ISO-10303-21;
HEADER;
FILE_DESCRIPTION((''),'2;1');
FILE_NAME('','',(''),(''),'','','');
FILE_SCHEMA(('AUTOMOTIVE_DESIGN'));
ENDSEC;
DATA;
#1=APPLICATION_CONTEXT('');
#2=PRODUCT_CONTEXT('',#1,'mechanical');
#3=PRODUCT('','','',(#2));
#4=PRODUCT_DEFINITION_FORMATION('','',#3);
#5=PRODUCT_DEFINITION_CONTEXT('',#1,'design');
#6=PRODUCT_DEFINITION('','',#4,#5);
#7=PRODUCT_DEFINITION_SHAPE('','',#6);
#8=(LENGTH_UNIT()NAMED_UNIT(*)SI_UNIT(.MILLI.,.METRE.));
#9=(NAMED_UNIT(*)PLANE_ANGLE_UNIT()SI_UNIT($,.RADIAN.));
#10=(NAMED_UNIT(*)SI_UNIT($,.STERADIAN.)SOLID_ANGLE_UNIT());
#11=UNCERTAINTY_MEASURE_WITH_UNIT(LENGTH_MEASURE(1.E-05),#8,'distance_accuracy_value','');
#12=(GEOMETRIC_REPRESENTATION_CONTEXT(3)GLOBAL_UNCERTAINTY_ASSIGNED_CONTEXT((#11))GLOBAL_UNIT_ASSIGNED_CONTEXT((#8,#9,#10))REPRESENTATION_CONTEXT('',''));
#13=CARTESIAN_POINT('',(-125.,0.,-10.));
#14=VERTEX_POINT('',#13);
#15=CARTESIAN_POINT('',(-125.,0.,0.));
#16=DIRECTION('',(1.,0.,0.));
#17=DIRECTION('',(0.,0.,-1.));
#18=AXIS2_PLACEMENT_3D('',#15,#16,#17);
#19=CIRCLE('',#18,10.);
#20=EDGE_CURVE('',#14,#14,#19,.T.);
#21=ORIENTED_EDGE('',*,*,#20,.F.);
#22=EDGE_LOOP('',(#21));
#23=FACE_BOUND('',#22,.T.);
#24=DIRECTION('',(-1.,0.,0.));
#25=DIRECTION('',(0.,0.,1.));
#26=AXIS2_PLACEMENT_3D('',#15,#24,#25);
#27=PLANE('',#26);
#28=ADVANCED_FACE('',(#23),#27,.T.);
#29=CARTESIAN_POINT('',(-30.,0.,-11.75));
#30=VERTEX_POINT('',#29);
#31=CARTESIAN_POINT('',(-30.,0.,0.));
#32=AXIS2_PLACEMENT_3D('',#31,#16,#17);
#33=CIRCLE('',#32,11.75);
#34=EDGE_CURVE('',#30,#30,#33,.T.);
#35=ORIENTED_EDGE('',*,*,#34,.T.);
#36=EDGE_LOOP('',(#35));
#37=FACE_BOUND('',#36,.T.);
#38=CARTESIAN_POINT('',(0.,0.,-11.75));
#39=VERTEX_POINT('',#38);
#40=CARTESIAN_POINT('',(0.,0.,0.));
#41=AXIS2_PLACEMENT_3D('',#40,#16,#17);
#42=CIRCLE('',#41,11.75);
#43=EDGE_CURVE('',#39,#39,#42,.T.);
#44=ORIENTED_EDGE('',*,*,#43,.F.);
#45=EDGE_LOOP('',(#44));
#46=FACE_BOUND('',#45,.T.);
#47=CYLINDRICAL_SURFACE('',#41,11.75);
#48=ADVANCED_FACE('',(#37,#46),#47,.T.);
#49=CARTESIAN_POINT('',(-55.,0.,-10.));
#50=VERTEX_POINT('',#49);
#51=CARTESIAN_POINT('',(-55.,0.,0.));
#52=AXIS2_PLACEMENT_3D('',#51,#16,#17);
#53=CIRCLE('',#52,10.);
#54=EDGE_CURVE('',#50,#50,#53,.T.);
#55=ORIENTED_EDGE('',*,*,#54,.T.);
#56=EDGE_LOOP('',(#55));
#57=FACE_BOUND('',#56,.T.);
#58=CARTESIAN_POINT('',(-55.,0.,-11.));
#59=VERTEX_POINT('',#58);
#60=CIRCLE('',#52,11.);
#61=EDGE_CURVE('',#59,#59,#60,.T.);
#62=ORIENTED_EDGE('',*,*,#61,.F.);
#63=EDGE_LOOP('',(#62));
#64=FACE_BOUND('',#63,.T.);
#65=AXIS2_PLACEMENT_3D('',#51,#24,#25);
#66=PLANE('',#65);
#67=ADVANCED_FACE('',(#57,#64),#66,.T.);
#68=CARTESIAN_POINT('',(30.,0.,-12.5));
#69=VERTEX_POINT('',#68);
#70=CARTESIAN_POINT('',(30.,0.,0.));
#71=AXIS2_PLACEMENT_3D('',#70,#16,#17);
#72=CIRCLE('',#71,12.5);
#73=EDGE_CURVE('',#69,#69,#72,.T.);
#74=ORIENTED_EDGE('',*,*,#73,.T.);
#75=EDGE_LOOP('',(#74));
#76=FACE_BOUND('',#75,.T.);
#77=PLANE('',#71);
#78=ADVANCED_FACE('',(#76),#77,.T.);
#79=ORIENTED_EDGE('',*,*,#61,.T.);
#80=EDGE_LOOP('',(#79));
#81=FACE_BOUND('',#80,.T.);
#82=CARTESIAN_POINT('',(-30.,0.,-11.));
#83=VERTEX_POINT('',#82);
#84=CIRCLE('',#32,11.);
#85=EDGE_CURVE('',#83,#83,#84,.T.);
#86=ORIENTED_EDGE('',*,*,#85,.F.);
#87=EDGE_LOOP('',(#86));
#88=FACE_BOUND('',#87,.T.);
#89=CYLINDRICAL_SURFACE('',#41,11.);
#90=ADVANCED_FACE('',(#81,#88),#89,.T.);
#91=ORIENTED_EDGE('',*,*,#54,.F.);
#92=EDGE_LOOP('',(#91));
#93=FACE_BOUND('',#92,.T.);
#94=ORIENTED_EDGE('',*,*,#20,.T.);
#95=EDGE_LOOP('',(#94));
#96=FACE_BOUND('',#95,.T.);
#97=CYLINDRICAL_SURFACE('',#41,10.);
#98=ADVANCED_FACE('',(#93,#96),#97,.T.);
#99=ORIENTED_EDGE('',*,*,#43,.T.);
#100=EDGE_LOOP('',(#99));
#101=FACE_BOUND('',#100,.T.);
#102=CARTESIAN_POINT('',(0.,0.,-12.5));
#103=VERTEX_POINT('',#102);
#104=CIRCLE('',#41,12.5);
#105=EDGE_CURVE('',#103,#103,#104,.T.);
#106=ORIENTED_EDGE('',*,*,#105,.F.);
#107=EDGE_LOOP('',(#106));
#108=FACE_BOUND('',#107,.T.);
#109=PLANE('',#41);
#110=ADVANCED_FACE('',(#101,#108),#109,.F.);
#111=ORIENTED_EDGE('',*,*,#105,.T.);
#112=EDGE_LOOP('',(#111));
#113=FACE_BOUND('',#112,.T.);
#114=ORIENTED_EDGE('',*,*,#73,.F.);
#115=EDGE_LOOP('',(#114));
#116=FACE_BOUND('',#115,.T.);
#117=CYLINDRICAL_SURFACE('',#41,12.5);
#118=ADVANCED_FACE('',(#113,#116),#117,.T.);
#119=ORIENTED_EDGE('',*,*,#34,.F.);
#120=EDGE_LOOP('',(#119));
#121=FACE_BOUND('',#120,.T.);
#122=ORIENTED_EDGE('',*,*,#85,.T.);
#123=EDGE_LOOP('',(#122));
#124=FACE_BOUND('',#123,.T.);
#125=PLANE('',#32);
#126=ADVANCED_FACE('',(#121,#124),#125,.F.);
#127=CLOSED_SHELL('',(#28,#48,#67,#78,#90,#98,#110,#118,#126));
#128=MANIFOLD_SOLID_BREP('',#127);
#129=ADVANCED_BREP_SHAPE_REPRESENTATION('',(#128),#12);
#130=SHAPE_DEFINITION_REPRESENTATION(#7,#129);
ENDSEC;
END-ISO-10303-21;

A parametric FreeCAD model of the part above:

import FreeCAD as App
import Part
import Sketcher

V = App.Vector
Q = App.Units.Quantity

doc = App.newDocument("Part")
body = doc.addObject("PartDesign::Body", "Body")

sketch1 = body.newObject("Sketcher::SketchObject", "Sketch")
sketch1.AttachmentSupport = (doc.getObject("XY_Plane"), [""])
sketch1.MapMode = "FlatFace"
sketch1.addGeometry([
    Part.LineSegment(V(-55, 10, 0), V(-125, 10, 0)),
    Part.LineSegment(V(-125, 10, 0), V(-125, 0, 0)),
    Part.LineSegment(V(-125, 0, 0), V(30, 0, 0)),
    Part.LineSegment(V(30, 0, 0), V(30, 12.5, 0)),
    Part.LineSegment(V(30, 12.5, 0), V(0, 12.5, 0)),
    Part.LineSegment(V(0, 12.5, 0), V(0, 11.75, 0)),
    Part.LineSegment(V(0, 11.75, 0), V(-30, 11.75, 0)),
    Part.LineSegment(V(-30, 11.75, 0), V(-30, 11, 0)),
    Part.LineSegment(V(-30, 11, 0), V(-55, 11, 0)),
    Part.LineSegment(V(-55, 11, 0), V(-55, 10, 0)),
], False)
sketch1.addConstraint([
    Sketcher.Constraint("Coincident", 0, 2, 1, 1),
    Sketcher.Constraint("Coincident", 1, 2, 2, 1),
    Sketcher.Constraint("Coincident", 2, 2, 3, 1),
    Sketcher.Constraint("Coincident", 3, 2, 4, 1),
    Sketcher.Constraint("Coincident", 4, 2, 5, 1),
    Sketcher.Constraint("Coincident", 5, 2, 6, 1),
    Sketcher.Constraint("Coincident", 6, 2, 7, 1),
    Sketcher.Constraint("Coincident", 7, 2, 8, 1),
    Sketcher.Constraint("Coincident", 8, 2, 9, 1),
    Sketcher.Constraint("Coincident", 9, 2, 0, 1),
    Sketcher.Constraint("Horizontal", 0),
    Sketcher.Constraint("Vertical", 1),
    Sketcher.Constraint("Horizontal", 2),
    Sketcher.Constraint("Vertical", 3),
    Sketcher.Constraint("Horizontal", 4),
    Sketcher.Constraint("Vertical", 5),
    Sketcher.Constraint("Horizontal", 6),
    Sketcher.Constraint("Vertical", 7),
    Sketcher.Constraint("Horizontal", 8),
    Sketcher.Constraint("Vertical", 9),
    Sketcher.Constraint("PointOnObject", 1, 2, -1),
    Sketcher.Constraint("PointOnObject", 4, 2, -2),
    Sketcher.Constraint("Equal", 4, 6),
    Sketcher.Constraint("Equal", 5, 7),
    Sketcher.Constraint("DistanceX", 0, 2, 0, 1, Q("70 mm")),
    Sketcher.Constraint("DistanceX", 2, 1, 2, 2, Q("155 mm")),
    Sketcher.Constraint("DistanceX", 4, 2, 4, 1, Q("30 mm")),
    Sketcher.Constraint("DistanceY", 1, 2, 1, 1, Q("10 mm")),
    Sketcher.Constraint("DistanceY", 9, 2, 9, 1, Q("1 mm")),
    Sketcher.Constraint("DistanceY", 3, 1, 3, 2, Q("12.5 mm")),
])
revolution = body.newObject("PartDesign::Revolution", "Revolution")
revolution.Profile = sketch1
revolution.ReferenceAxis = (sketch1, ["H_Axis"])
revolution.Angle = 360

doc.recompute()
